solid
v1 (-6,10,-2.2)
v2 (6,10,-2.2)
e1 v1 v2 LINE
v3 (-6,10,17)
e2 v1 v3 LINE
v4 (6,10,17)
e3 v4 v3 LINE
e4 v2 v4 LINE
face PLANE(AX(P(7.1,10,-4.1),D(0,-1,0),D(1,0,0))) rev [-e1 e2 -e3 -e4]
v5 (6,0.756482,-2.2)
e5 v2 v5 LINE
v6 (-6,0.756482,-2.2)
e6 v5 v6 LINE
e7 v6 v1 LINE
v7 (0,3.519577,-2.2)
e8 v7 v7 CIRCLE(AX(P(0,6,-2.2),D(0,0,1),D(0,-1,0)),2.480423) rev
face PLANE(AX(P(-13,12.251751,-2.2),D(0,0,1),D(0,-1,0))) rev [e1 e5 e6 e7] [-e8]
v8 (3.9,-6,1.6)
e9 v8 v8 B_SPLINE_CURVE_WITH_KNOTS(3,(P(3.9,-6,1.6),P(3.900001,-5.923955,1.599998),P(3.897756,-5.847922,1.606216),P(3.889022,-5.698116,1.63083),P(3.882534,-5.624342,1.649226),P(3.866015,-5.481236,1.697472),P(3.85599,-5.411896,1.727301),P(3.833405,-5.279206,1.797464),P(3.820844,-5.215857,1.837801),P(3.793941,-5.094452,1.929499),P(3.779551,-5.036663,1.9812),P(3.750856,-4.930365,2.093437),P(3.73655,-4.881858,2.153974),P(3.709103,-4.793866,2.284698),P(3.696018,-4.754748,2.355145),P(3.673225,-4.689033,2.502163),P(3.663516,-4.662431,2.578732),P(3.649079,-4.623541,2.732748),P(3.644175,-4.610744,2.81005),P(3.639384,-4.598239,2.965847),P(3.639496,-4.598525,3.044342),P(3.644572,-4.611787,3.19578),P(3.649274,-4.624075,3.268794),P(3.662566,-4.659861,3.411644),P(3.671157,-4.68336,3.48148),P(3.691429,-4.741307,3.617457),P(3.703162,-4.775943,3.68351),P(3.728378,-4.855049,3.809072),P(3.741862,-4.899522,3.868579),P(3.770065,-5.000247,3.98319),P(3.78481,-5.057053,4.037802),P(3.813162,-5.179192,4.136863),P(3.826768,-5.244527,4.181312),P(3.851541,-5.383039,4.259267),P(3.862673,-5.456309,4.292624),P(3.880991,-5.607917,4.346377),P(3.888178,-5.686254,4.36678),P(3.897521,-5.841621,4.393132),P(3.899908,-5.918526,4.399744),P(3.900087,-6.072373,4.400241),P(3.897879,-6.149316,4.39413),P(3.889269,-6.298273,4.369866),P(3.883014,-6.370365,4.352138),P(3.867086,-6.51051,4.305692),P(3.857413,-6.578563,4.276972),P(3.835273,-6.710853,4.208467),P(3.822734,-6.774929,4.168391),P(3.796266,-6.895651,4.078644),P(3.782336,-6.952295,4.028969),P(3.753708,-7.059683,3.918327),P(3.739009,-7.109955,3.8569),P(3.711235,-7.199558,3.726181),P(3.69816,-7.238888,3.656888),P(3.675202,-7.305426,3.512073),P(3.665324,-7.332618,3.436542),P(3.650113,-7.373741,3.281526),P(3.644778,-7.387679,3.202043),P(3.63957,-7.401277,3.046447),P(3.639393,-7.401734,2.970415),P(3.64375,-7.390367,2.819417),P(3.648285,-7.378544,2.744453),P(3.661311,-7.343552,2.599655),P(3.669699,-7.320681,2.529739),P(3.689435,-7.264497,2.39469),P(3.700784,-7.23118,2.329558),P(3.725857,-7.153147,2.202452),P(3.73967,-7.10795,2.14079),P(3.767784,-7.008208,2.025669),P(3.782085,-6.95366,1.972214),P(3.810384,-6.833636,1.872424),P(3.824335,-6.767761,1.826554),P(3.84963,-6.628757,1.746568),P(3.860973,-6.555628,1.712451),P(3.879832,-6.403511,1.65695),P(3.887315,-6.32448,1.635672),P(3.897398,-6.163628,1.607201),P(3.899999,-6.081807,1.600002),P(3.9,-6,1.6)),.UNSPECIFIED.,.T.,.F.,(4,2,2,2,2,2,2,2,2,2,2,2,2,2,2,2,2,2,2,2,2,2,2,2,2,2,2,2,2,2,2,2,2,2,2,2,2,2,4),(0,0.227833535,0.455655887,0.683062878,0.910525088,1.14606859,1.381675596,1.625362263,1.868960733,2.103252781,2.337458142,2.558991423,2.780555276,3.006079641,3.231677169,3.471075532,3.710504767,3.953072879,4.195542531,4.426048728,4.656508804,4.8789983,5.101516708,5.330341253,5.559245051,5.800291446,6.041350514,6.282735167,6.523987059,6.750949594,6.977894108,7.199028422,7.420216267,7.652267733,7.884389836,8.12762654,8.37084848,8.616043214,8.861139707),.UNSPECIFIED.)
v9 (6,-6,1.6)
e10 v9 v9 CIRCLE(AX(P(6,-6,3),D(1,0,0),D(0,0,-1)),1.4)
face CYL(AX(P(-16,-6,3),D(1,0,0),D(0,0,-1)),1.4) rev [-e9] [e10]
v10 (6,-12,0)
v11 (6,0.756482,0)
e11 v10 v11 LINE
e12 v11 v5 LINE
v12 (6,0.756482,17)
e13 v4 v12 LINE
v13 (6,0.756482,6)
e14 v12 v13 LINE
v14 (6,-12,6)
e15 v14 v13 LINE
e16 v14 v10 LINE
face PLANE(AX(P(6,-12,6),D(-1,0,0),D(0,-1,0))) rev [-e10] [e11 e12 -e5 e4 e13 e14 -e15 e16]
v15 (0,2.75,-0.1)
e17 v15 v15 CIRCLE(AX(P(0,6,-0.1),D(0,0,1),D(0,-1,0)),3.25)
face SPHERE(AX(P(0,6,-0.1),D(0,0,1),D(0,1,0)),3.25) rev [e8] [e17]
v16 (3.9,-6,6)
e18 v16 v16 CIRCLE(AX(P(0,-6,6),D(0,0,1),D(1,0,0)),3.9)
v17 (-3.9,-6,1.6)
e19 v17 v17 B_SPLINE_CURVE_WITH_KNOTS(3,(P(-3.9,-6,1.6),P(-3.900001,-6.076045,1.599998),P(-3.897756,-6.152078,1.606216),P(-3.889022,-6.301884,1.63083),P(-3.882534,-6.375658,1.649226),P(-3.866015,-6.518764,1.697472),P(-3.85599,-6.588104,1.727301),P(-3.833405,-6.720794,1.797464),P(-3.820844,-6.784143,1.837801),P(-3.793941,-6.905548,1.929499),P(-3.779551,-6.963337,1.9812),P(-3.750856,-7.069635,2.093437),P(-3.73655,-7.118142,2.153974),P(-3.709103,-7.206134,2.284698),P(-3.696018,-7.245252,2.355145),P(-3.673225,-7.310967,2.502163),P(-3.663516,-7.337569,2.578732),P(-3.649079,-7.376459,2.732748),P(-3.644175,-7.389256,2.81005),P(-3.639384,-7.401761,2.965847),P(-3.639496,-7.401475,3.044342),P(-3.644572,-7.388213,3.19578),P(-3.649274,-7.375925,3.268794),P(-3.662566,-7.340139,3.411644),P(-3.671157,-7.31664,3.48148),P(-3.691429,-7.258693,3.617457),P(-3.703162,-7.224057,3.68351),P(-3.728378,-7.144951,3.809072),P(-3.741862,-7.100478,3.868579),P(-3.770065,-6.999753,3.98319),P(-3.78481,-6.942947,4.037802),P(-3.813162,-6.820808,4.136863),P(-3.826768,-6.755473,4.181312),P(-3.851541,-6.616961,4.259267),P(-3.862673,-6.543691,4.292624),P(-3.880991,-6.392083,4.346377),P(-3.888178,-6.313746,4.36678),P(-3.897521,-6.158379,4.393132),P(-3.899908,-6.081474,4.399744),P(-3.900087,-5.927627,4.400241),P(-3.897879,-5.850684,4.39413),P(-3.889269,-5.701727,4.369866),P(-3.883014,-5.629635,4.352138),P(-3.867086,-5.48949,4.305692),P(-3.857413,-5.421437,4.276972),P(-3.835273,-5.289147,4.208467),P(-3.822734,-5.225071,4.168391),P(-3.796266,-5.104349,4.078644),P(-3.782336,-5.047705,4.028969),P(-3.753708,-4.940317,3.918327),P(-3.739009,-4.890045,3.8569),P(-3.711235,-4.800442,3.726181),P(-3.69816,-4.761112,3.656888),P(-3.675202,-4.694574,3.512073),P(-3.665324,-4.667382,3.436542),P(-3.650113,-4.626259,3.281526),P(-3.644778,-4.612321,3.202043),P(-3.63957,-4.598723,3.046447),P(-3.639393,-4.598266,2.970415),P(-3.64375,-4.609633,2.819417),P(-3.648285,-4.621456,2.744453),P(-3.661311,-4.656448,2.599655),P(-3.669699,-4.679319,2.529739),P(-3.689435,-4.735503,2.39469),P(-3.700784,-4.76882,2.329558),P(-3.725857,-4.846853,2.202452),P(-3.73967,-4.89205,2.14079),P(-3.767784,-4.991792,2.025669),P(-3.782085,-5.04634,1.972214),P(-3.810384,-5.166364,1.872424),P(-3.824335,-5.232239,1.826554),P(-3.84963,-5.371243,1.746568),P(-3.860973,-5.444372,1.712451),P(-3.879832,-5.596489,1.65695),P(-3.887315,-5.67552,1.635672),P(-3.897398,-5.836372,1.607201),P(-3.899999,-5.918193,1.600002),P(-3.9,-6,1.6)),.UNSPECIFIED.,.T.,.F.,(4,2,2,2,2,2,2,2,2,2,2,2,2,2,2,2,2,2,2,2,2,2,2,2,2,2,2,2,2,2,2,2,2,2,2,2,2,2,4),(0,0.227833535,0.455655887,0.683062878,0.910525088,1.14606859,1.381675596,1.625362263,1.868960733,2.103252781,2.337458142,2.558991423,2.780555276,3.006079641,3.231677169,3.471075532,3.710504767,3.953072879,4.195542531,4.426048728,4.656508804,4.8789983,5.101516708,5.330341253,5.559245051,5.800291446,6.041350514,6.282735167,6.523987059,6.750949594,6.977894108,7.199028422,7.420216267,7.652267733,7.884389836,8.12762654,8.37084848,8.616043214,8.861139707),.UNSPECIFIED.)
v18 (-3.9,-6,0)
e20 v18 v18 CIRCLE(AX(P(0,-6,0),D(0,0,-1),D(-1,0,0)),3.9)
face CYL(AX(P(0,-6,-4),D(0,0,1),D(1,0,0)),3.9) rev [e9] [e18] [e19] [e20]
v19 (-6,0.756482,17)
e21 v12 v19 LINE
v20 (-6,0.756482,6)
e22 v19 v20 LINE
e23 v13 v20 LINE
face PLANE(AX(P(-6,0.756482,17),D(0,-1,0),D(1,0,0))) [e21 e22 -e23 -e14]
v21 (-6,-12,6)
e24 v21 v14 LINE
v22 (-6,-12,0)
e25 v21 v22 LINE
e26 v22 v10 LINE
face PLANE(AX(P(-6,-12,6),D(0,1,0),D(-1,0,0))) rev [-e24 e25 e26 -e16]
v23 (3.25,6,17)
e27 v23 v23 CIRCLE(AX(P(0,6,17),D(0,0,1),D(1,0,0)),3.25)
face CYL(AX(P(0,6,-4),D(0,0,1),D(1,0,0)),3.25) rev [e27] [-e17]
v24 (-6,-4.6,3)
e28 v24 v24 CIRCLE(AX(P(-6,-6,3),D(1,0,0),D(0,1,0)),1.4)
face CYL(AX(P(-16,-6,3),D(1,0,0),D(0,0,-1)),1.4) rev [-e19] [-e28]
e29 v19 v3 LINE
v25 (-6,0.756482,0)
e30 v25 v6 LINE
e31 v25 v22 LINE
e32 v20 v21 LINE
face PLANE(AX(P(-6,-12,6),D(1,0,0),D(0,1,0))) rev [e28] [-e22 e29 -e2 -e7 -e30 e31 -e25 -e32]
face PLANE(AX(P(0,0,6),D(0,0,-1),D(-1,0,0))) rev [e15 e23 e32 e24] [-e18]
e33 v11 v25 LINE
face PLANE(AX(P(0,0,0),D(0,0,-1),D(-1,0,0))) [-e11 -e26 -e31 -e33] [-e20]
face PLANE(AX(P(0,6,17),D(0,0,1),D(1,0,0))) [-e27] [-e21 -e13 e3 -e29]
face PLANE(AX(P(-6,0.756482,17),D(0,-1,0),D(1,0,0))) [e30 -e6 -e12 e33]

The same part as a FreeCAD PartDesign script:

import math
import FreeCAD as App
import Part
import Sketcher

V = App.Vector


def add_polygon(sketch, points):
    """Adds a closed chain of lines whose ends are joined by coincident constraints."""
    first, n = sketch.GeometryCount, len(points)
    for a, b in zip(points, points[1:] + points[:1]):
        sketch.addGeometry(Part.LineSegment(App.Vector(*a, 0), App.Vector(*b, 0)), False)
    for i in range(n):
        sketch.addConstraint(Sketcher.Constraint("Coincident", first + i, 2, first + (i + 1) % n, 1))

doc = App.newDocument("Part")
body = doc.addObject("PartDesign::Body", "Body")

sketch1 = body.newObject("Sketcher::SketchObject", "Sketch")
sketch1.AttachmentSupport = (doc.getObject("XY_Plane"), [""])
sketch1.MapMode = "FlatFace"
add_polygon(sketch1, [(-6, 12), (-6, -12), (6, -12), (6, 12)])
sketch1.addConstraint([
    Sketcher.Constraint("Vertical", 0),
    Sketcher.Constraint("Horizontal", 1),
    Sketcher.Constraint("Vertical", 2),
    Sketcher.Constraint("Horizontal", 3),
    Sketcher.Constraint("Symmetric", 0, 2, 2, 2, -1, 1),
    Sketcher.Constraint("DistanceX", 1, 1, 1, 2, 12.0),
    Sketcher.Constraint("DistanceY", 0, 2, 0, 1, 24.0),
])
pad1 = body.newObject("PartDesign::Pad", "Pad")
pad1.Profile = sketch1
pad1.Length = 6

sketch2 = body.newObject("Sketcher::SketchObject", "Sketch001")
sketch2.AttachmentSupport = (doc.getObject("XY_Plane"), [""])
sketch2.MapMode = "FlatFace"
sketch2.AttachmentOffset = App.Placement(V(0, 0, 6), App.Rotation())
sketch2.addGeometry(Part.Circle(V(0, 6, 0), V(0, 0, 1), 3.2), False)
sketch2.addConstraint([
    Sketcher.Constraint("PointOnObject", 0, 3, -2),
    Sketcher.Constraint("Diameter", 0, 6.5),
    Sketcher.Constraint("DistanceY", -1, 1, 0, 3, 6.0),
])
pocket1 = body.newObject("PartDesign::Pocket", "Pocket")
pocket1.Profile = sketch2
pocket1.Length = 10

sketch3 = body.newObject("Sketcher::SketchObject", "Sketch002")
sketch3.AttachmentSupport = (doc.getObject("XY_Plane"), [""])
sketch3.MapMode = "FlatFace"
sketch3.AttachmentOffset = App.Placement(V(0, 0, 6), App.Rotation())
sketch3.addGeometry(Part.Circle(V(0, -6, 0), V(0, 0, 1), 3.9), False)
sketch3.addConstraint([
    Sketcher.Constraint("PointOnObject", 0, 3, -2),
    Sketcher.Constraint("Diameter", 0, 7.8),
    Sketcher.Constraint("DistanceY", 0, 3, -1, 1, 6.0),
])
pocket2 = body.newObject("PartDesign::Pocket", "Pocket001")
pocket2.Profile = sketch3
pocket2.Length = 10

sketch4 = body.newObject("Sketcher::SketchObject", "Sketch003")
sketch4.AttachmentSupport = (doc.getObject("YZ_Plane"), [""])
sketch4.MapMode = "FlatFace"
sketch4.AttachmentOffset = App.Placement(V(0, 0, 6), App.Rotation())
sketch4.addGeometry(Part.Circle(V(-6, 3, 0), V(0, 0, 1), 1.4), False)
sketch4.addConstraint([
    Sketcher.Constraint("Diameter", 0, 2.8),
    Sketcher.Constraint("DistanceX", 0, 3, -1, 1, 6.0),
    Sketcher.Constraint("DistanceY", -1, 1, 0, 3, 3.0),
])
pocket3 = body.newObject("PartDesign::Pocket", "Pocket002")
pocket3.Profile = sketch4
pocket3.Length = 22

sketch5 = body.newObject("Sketcher::SketchObject", "Sketch004")
sketch5.AttachmentSupport = (doc.getObject("XY_Plane"), [""])
sketch5.MapMode = "FlatFace"
sketch5.addGeometry([
    Part.Circle(V(0, 6, 0), V(0, 0, 1), 4.5),
    Part.Circle(V(0, 6, 0), V(0, 0, 1), 3.2),
], False)
sketch5.addConstraint([
    Sketcher.Constraint("Coincident", 1, 3, 0, 3),
    Sketcher.Constraint("PointOnObject", 0, 3, -2),
    Sketcher.Constraint("Diameter", 0, 9.0),
    Sketcher.Constraint("Diameter", 1, 6.5),
    Sketcher.Constraint("DistanceY", -1, 1, 0, 3, 6.0),
])
pad2 = body.newObject("PartDesign::Pad", "Pad001")
pad2.Profile = sketch5
pad2.Length = 0.1
pad2.Reversed = True

sketch6 = body.newObject("Sketcher::SketchObject", "Sketch005")
sketch6.AttachmentSupport = (doc.getObject("YZ_Plane"), [""])
sketch6.MapMode = "FlatFace"
sketch6.addGeometry([
    Part.LineSegment(V(10.5, -0.1, 0), V(9.2, -0.1, 0)),
    Part.ArcOfCircle(Part.Circle(V(6, -0.1, 0), V(0, 0, 1), 3.2), math.radians(-90), math.radians(0)),
    Part.LineSegment(V(6, -3.4, 0), V(6, -4.6, 0)),
    Part.ArcOfCircle(Part.Circle(V(6, -0.1, 0), V(0, 0, 1), 4.5), math.radians(-90), math.radians(0)),
], False)
sketch6.addGeometry(Part.LineSegment(V(6, -0.1, 0), V(6, -4.6, 0)), True)
sketch6.addConstraint([
    Sketcher.Constraint("Coincident", 0, 2, 1, 2),
    Sketcher.Constraint("Coincident", 1, 1, 2, 1),
    Sketcher.Constraint("Coincident", 2, 2, 3, 1),
    Sketcher.Constraint("Coincident", 3, 2, 0, 1),
    Sketcher.Constraint("Horizontal", 0),
    Sketcher.Constraint("Vertical", 2),
    Sketcher.Constraint("Vertical", 4),
    Sketcher.Constraint("Coincident", 3, 3, 1, 3),
    Sketcher.Constraint("Coincident", 4, 1, 1, 3),
    Sketcher.Constraint("Coincident", 4, 2, 2, 2),
    Sketcher.Constraint("Horizontal", 3, 3, 0, 2),
    Sketcher.Constraint("Radius", 3, 4.5),
    Sketcher.Constraint("Radius", 1, 3.25),
    Sketcher.Constraint("DistanceX", -1, 1, 1, 3, 6.0),
    Sketcher.Constraint("DistanceY", 1, 3, -1, 1, 0.1),
])
revolution = body.newObject("PartDesign::Revolution", "Revolution")
revolution.Profile = sketch6
revolution.ReferenceAxis = (sketch6, ["Axis0"])
revolution.Angle = 360

sketch7 = body.newObject("Sketcher::SketchObject", "Sketch006")
sketch7.AttachmentSupport = (doc.getObject("YZ_Plane"), [""])
sketch7.MapMode = "FlatFace"
sketch7.AttachmentOffset = App.Placement(V(0, 0, 6), App.Rotation())
add_polygon(sketch7, [(12, -2), (0, -2), (0, -23), (12, -23)])
sketch7.addConstraint([
    Sketcher.Constraint("Horizontal", 0),
    Sketcher.Constraint("Vertical", 1),
    Sketcher.Constraint("Horizontal", 2),
    Sketcher.Constraint("Vertical", 3),
    Sketcher.Constraint("DistanceY", 0, 2, -1, 1, 2.2),
    Sketcher.Constraint("DistanceX", 0, 2, 0, 1, 12.113313),
    Sketcher.Constraint("DistanceY", 1, 2, 1, 1, 21.223717),
    Sketcher.Constraint("DistanceX", -1, 1, 2, 2, 12.251751),
])
pocket4 = body.newObject("PartDesign::Pocket", "Pocket003")
pocket4.Profile = sketch7
pocket4.Length = 19

sketch8 = body.newObject("Sketcher::SketchObject", "Sketch007")
sketch8.AttachmentSupport = (doc.getObject("YZ_Plane"), [""])
sketch8.MapMode = "FlatFace"
sketch8.AttachmentOffset = App.Placement(V(0, 0, 6), App.Rotation())
sketch8.addGeometry(Part.Circle(V(6, 3, 0), V(0, 0, 1), 1.6), False)
sketch8.addConstraint([
    Sketcher.Constraint("Diameter", 0, 3.25),
    Sketcher.Constraint("DistanceX", -1, 1, 0, 3, 6.0),
    Sketcher.Constraint("DistanceY", -1, 1, 0, 3, 3.0),
])
pocket5 = body.newObject("PartDesign::Pocket", "Pocket004")
pocket5.Profile = sketch8
pocket5.Length = 19

sketch9 = body.newObject("Sketcher::SketchObject", "Sketch008")
sketch9.AttachmentSupport = (doc.getObject("XY_Plane"), [""])
sketch9.MapMode = "FlatFace"
sketch9.AttachmentOffset = App.Placement(V(0, 0, 6), App.Rotation())
sketch9.addGeometry([
    Part.Circle(V(0, 6, 0), V(0, 0, 1), 5),
    Part.Circle(V(0, 6, 0), V(0, 0, 1), 3.2),
], False)
sketch9.addConstraint([
    Sketcher.Constraint("Coincident", 1, 3, 0, 3),
    Sketcher.Constraint("PointOnObject", 0, 3, -2),
    Sketcher.Constraint("Diameter", 0, 10.0),
    Sketcher.Constraint("Diameter", 1, 6.5),
    Sketcher.Constraint("DistanceY", -1, 1, 0, 3, 6.0),
])
pad3 = body.newObject("PartDesign::Pad", "Pad002")
pad3.Profile = sketch9
pad3.Length = 11

sketch10 = body.newObject("Sketcher::SketchObject", "Sketch009")
sketch10.AttachmentSupport = (doc.getObject("XY_Plane"), [""])
sketch10.MapMode = "FlatFace"
add_polygon(sketch10, [(6, 12), (6, 0.8), (-6, 0.8), (-6, 12)])
sketch10.addGeometry(Part.Circle(V(0, 6, 0), V(0, 0, 1), 3.2), False)
sketch10.addConstraint([
    Sketcher.Constraint("Vertical", 0),
    Sketcher.Constraint("Horizontal", 1),
    Sketcher.Constraint("Vertical", 2),
    Sketcher.Constraint("Horizontal", 3),
    Sketcher.Constraint("PointOnObject", 4, 3, -2),
    Sketcher.Constraint("Diameter", 4, 6.5),
    Sketcher.Constraint("DistanceX", 1, 2, 1, 1, 12.0),
    Sketcher.Constraint("DistanceY", -1, 1, 4, 3, 6.0),
    Sketcher.Constraint("DistanceX", -1, 1, 0, 2, 6.0),
    Sketcher.Constraint("DistanceY", -1, 1, 2, 2, 12.0),
    Sketcher.Constraint("DistanceY", 0, 2, 0, 1, 11.243518),
])
pad4 = body.newObject("PartDesign::Pad", "Pad003")
pad4.Profile = sketch10
pad4.Type = "TwoLengths"
pad4.Length = 2.2
pad4.Length2 = 17
pad4.Reversed = True

sketch11 = body.newObject("Sketcher::SketchObject", "Sketch010")
sketch11.AttachmentSupport = (doc.getObject("YZ_Plane"), [""])
sketch11.MapMode = "FlatFace"
sketch11.AttachmentOffset = App.Placement(V(0, 0, -6), App.Rotation())
add_polygon(sketch11, [(12, -4.1), (10, -4.1), (10, 17), (12, 17)])
sketch11.addConstraint([
    Sketcher.Constraint("Horizontal", 0),
    Sketcher.Constraint("Vertical", 1),
    Sketcher.Constraint("Horizontal", 2),
    Sketcher.Constraint("Vertical", 3),
    Sketcher.Constraint("DistanceX", 0, 2, 0, 1, 2.0),
    Sketcher.Constraint("DistanceY", 1, 1, 1, 2, 21.1),
    Sketcher.Constraint("DistanceX", -1, 1, 0, 2, 10.0),
    Sketcher.Constraint("DistanceY", -1, 1, 1, 2, 17.0),
])
pocket6 = body.newObject("PartDesign::Pocket", "Pocket005")
pocket6.Profile = sketch11
pocket6.Length = 13.1
pocket6.Reversed = True

doc.recompute()
